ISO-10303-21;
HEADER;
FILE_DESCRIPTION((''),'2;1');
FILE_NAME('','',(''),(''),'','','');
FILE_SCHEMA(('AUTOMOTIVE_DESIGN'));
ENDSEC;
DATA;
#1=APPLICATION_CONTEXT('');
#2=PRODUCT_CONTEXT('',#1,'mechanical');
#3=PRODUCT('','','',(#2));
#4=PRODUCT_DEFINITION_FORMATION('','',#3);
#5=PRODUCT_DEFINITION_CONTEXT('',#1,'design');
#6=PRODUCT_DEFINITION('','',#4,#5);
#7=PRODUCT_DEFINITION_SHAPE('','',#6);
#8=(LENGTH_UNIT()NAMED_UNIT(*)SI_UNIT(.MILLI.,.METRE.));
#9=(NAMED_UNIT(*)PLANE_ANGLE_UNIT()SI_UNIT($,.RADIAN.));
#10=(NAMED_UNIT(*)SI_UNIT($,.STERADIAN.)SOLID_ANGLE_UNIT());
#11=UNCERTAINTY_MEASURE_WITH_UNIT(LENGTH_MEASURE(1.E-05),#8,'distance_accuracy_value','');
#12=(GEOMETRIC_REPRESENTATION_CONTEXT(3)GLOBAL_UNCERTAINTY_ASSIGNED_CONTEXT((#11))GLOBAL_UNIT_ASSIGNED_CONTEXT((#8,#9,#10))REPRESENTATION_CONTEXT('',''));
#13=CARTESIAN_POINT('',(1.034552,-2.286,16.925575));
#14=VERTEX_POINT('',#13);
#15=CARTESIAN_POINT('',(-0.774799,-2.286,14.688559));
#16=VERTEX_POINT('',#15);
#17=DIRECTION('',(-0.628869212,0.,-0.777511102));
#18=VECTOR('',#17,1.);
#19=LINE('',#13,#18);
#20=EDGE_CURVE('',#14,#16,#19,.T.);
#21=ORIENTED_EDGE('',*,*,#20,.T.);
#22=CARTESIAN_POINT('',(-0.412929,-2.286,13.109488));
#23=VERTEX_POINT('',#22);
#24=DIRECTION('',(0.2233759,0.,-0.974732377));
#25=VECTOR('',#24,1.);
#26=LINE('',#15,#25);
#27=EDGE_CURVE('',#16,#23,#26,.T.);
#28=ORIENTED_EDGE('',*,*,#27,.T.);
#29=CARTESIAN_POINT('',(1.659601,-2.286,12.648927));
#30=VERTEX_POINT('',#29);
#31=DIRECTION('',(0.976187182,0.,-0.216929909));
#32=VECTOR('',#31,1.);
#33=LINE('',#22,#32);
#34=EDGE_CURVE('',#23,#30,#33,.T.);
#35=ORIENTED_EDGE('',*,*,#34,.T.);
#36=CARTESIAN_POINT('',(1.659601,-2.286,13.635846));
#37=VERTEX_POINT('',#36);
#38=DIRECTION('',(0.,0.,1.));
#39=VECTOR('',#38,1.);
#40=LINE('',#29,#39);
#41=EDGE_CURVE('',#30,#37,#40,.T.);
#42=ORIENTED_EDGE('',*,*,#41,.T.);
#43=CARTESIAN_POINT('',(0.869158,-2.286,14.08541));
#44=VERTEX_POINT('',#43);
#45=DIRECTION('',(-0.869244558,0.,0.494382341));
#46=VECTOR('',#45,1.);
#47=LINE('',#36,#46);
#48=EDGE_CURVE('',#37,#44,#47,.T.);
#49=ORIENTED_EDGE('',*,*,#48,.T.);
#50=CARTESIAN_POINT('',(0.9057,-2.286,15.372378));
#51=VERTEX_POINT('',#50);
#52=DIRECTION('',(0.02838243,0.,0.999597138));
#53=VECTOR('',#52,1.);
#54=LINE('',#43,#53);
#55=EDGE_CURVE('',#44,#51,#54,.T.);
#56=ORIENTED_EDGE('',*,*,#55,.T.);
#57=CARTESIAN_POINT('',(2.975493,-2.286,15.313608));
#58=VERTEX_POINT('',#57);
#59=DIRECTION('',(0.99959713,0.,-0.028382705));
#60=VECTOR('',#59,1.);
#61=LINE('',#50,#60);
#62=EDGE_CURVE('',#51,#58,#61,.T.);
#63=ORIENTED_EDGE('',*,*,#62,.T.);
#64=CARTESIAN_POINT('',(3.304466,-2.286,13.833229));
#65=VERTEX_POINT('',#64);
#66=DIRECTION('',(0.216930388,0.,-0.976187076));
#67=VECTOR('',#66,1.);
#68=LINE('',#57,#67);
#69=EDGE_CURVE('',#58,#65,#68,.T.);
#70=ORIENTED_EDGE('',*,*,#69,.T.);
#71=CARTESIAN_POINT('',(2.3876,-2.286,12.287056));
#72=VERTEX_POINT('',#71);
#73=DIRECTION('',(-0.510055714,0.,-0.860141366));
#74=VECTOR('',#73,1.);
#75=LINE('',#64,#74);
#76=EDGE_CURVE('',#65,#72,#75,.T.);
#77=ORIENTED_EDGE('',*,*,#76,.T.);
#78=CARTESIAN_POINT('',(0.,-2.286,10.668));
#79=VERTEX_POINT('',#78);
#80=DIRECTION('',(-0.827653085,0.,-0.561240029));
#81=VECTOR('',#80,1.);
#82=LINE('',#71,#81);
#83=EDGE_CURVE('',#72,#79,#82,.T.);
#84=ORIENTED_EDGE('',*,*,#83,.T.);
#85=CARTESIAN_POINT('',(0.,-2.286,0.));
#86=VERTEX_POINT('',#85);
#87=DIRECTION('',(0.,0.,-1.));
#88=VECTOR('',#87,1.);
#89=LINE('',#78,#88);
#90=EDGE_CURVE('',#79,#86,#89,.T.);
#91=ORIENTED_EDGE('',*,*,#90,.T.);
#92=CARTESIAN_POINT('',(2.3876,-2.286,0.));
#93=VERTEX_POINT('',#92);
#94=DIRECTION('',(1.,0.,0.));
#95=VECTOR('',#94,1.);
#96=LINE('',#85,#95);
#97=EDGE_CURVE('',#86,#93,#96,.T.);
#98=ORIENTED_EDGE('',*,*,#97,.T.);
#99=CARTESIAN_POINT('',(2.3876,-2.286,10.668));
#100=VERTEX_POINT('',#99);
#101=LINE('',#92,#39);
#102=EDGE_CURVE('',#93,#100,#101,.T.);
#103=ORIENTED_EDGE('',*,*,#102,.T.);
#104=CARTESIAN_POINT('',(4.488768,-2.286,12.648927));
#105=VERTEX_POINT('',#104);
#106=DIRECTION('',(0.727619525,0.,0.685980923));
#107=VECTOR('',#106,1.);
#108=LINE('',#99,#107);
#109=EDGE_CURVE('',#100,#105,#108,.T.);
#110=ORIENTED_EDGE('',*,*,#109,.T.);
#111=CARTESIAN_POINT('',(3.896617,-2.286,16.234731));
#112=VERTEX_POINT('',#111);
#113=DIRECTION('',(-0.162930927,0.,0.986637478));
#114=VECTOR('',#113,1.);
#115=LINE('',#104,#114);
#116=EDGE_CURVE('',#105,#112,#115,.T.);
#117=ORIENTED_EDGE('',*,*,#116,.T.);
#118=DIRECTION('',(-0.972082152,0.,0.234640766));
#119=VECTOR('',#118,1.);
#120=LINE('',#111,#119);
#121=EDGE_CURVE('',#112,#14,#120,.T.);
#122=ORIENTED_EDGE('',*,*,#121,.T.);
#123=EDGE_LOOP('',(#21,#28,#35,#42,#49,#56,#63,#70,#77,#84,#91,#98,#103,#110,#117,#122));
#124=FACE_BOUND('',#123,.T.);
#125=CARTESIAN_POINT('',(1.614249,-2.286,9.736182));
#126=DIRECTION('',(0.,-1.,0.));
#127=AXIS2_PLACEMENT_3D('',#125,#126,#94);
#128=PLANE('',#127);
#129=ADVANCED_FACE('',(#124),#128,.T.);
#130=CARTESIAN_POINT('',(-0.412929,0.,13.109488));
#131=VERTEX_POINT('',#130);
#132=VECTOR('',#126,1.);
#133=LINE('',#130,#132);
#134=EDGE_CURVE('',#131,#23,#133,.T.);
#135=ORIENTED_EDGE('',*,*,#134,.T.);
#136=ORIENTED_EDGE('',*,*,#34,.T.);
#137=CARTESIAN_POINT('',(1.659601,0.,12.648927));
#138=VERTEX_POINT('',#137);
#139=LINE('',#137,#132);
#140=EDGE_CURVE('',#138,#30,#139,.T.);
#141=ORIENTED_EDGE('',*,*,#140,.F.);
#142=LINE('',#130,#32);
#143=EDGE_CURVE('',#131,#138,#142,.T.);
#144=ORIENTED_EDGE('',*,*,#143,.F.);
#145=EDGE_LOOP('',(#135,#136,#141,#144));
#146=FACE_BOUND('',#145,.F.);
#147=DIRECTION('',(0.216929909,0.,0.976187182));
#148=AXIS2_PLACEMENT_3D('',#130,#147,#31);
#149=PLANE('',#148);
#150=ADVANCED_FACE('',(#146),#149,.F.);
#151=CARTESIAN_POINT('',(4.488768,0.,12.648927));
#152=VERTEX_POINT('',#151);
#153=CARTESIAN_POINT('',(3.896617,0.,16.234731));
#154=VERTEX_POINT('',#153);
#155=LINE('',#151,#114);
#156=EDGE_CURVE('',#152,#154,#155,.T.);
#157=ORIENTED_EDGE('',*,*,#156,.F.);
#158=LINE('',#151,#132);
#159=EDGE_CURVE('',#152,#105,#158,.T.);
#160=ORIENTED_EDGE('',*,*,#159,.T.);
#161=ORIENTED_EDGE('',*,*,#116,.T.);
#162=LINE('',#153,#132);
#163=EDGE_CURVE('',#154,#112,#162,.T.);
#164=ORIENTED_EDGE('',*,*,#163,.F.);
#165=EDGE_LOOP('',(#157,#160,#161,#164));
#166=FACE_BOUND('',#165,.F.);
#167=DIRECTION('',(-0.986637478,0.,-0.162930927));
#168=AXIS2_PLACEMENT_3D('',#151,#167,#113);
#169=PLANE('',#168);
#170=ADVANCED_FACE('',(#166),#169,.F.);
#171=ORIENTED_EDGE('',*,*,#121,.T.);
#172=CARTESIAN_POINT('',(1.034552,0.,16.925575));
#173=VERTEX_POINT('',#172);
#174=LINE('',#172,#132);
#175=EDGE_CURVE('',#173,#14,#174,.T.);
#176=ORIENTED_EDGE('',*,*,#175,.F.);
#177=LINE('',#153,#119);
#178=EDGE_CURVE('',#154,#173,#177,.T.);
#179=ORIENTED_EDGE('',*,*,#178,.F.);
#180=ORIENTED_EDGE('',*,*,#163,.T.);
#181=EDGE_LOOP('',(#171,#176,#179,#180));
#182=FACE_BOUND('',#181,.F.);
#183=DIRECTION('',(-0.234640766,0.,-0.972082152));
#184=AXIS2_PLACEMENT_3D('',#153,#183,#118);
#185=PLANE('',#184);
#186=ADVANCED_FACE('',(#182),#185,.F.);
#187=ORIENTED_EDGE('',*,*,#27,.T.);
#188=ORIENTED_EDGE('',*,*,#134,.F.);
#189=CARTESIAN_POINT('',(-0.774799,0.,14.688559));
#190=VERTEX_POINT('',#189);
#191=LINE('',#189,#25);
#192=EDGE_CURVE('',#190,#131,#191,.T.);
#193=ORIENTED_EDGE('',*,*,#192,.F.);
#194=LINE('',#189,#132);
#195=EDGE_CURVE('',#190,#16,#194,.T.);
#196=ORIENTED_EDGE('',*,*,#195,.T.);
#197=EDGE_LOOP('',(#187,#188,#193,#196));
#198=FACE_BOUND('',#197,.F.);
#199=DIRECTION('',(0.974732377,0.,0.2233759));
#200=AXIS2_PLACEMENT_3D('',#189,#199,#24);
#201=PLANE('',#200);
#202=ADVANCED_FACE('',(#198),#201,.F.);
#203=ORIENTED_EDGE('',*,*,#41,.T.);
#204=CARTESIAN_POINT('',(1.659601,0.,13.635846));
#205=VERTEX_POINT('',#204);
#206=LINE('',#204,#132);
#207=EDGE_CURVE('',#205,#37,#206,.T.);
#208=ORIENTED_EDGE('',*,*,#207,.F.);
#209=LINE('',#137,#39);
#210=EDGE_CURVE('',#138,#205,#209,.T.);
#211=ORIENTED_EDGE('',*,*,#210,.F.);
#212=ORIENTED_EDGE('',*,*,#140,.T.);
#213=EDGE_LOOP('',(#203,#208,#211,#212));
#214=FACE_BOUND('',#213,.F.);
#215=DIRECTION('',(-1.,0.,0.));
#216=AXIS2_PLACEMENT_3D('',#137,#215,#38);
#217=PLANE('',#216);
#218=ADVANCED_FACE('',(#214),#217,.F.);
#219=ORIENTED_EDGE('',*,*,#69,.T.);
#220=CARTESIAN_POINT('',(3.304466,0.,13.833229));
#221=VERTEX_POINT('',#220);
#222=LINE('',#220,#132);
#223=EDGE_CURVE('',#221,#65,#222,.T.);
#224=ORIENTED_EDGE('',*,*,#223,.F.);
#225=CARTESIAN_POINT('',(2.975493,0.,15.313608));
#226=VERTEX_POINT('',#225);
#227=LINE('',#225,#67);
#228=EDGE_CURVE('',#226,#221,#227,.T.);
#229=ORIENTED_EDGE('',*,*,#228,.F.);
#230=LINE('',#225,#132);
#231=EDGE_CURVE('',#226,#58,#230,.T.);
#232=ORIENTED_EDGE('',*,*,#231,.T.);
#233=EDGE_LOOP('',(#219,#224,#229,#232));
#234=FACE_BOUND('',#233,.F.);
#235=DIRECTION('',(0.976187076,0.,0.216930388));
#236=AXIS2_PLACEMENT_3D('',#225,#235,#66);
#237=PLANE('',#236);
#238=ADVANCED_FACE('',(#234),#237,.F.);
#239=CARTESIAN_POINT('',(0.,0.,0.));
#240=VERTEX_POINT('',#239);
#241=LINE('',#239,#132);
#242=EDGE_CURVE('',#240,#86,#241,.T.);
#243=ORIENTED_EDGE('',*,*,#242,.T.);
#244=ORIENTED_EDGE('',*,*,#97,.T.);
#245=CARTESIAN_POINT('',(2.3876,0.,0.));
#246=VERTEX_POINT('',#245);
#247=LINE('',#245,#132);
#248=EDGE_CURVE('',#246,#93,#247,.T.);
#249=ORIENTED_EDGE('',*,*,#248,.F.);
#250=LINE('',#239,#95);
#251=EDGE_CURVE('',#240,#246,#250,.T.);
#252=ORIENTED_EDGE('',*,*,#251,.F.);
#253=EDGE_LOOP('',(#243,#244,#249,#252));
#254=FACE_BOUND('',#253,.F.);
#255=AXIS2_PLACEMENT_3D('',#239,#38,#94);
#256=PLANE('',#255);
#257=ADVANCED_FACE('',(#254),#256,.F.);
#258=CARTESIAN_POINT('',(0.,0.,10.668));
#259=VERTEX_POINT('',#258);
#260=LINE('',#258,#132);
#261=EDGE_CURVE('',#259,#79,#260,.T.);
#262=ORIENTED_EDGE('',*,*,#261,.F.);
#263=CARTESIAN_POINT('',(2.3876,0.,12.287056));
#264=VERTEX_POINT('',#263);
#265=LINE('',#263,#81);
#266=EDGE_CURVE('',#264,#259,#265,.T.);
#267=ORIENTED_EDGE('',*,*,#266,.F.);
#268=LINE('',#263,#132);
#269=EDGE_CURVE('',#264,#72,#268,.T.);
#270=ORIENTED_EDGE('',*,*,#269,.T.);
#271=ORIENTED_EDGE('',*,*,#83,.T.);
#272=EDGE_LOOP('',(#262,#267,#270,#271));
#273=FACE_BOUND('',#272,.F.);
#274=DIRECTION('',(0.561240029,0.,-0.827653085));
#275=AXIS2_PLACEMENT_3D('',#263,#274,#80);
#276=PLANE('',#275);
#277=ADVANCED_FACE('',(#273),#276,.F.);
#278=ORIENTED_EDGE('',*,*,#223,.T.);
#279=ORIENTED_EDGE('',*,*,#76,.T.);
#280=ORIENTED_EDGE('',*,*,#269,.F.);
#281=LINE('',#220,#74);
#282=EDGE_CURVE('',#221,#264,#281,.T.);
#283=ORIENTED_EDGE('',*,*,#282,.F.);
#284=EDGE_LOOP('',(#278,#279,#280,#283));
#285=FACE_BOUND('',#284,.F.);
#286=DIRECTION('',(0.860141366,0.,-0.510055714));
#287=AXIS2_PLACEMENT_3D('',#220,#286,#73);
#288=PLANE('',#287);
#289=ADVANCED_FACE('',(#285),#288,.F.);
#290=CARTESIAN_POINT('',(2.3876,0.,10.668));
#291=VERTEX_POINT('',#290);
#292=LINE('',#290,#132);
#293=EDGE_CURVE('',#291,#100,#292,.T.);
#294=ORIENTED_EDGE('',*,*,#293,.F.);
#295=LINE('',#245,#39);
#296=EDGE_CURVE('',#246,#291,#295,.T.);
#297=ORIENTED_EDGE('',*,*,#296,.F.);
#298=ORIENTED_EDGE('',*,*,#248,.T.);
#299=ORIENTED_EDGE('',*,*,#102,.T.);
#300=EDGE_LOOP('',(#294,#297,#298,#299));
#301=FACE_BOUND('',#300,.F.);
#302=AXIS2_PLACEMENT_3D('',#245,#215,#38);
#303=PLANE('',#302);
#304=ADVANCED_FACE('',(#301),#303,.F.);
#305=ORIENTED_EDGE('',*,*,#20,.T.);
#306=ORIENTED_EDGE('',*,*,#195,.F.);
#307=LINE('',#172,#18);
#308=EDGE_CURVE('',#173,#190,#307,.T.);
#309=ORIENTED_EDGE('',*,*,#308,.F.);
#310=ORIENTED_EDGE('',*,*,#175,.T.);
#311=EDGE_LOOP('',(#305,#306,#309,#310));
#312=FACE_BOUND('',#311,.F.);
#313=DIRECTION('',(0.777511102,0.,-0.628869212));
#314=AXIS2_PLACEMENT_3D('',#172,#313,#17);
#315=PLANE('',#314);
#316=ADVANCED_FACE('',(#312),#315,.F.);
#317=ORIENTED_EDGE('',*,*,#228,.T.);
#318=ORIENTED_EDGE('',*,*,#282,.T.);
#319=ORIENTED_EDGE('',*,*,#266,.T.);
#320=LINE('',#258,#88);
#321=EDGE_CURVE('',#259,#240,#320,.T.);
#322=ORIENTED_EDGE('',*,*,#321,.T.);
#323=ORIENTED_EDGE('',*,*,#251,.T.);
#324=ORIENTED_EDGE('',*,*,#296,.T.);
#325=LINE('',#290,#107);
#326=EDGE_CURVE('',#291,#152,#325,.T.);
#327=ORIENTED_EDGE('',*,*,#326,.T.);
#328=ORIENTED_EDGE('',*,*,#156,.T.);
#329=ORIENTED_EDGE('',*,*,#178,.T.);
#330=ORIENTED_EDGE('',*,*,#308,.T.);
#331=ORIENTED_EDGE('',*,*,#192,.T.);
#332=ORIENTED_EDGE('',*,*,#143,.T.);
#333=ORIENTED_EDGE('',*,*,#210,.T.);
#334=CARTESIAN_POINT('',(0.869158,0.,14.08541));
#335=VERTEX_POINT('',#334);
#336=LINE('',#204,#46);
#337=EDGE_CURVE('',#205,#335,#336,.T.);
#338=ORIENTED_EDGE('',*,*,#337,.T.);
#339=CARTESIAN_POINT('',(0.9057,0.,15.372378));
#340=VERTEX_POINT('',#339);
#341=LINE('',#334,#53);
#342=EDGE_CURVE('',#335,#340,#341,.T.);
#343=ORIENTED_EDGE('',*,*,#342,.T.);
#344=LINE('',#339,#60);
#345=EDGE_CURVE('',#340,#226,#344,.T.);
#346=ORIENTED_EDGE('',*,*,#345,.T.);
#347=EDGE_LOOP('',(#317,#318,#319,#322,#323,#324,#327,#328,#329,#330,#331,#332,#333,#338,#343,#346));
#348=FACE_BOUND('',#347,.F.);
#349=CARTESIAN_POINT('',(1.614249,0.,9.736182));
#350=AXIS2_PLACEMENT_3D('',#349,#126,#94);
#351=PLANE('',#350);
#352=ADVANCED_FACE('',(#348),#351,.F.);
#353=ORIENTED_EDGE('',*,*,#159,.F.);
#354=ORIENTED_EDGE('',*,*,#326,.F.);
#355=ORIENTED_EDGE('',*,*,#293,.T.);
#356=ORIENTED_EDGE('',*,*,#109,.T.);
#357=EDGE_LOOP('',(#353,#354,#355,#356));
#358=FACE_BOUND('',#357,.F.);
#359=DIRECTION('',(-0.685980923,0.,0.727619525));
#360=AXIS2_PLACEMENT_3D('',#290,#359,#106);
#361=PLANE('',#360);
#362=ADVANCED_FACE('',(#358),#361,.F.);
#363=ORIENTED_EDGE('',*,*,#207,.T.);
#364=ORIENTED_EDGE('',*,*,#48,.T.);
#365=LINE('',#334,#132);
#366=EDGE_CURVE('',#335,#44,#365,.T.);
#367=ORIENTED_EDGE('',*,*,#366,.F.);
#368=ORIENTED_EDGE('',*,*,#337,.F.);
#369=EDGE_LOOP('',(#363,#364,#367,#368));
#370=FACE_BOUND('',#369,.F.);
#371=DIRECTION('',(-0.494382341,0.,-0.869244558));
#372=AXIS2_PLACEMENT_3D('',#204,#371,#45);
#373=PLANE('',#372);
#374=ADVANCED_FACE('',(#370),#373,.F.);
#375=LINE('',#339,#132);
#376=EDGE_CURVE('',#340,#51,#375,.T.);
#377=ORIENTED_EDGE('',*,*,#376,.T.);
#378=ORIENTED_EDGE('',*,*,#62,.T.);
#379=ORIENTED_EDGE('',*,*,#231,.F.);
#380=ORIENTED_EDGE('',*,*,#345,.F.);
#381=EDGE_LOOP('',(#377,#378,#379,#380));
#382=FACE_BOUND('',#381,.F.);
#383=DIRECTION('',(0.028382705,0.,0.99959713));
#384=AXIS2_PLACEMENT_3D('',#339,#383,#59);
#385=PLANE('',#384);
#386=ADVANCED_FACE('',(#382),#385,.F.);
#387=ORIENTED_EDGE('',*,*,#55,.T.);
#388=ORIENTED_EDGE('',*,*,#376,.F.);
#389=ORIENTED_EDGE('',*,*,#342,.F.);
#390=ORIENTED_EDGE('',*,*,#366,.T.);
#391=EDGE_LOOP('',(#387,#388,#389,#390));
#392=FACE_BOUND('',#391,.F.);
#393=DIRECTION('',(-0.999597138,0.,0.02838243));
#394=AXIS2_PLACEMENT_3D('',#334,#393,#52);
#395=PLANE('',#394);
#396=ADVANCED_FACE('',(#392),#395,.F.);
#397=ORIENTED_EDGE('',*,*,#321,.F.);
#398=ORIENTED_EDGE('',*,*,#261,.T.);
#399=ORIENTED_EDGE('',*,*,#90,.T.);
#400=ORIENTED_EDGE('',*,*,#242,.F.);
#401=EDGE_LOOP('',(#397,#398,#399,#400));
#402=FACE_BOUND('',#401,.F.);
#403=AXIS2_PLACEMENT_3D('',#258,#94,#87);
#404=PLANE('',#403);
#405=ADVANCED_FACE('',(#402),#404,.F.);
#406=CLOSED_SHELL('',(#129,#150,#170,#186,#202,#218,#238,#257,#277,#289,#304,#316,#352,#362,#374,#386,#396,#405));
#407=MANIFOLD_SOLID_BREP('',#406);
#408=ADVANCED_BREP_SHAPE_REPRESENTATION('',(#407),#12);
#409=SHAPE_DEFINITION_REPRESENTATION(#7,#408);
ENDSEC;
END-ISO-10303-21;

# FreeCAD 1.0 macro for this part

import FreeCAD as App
import Part
import Sketcher
Q = App.Units.Quantity


def add_polygon(sketch, points):
    """Adds a closed chain of lines whose ends are joined by coincident constraints."""
    first, n = sketch.GeometryCount, len(points)
    for a, b in zip(points, points[1:] + points[:1]):
        sketch.addGeometry(Part.LineSegment(App.Vector(*a, 0), App.Vector(*b, 0)), False)
    for i in range(n):
        sketch.addConstraint(Sketcher.Constraint("Coincident", first + i, 2, first + (i + 1) % n, 1))

doc = App.newDocument("Part")
params = doc.addObject("Spreadsheet::Sheet", "Params")
for row, (alias, value) in enumerate([
    ("sketch1_height", "0.42 in"),
    ("sketch1_height2", "0.42 in"),
    ("sketch1_width", "0.094 in"),
    ("pad1_length", "0.09 in"),
], start=1):
    params.set(f"A{row}", alias)
    params.set(f"B{row}", "=" + value)
    params.setAlias(f"B{row}", alias)

body = doc.addObject("PartDesign::Body", "Body")

# Sketch on XZ plane
sketch1 = body.newObject("Sketcher::SketchObject", "Sketch")
sketch1.AttachmentSupport = (doc.getObject("XZ_Plane"), [""])
sketch1.MapMode = "FlatFace"
add_polygon(sketch1, [(0, 10.668), (0, 0), (2.3876, 0), (2.3876, 10.668), (4.488768, 12.648927), (3.896617, 16.234731), (1.034552, 16.925575), (-0.774799, 14.688559), (-0.412929, 13.109488), (1.659601, 12.648927), (1.659601, 13.635846), (0.869158, 14.08541), (0.9057, 15.372378), (2.975493, 15.313608), (3.304466, 13.833229), (2.3876, 12.287056)])  # lines 0-15
sketch1.addConstraint(Sketcher.Constraint("Vertical", 0))
sketch1.addConstraint(Sketcher.Constraint("Horizontal", 1))
sketch1.addConstraint(Sketcher.Constraint("Vertical", 2))
sketch1.addConstraint(Sketcher.Constraint("Vertical", 9))
sketch1.addConstraint(Sketcher.Constraint("Coincident", 0, 2, -1, 1))
sketch1.addConstraint(Sketcher.Constraint("DistanceY", 0, 2, 0, 1, Q("0.42 in")))
sketch1.addConstraint(Sketcher.Constraint("DistanceY", 2, 1, 2, 2, Q("0.42 in")))
sketch1.addConstraint(Sketcher.Constraint("DistanceX", 1, 1, 1, 2, Q("0.094 in")))
sketch1.addConstraint(Sketcher.Constraint("DistanceX", -1, 1, 14, 2, Q("0.094 in")))
sketch1.addConstraint(Sketcher.Constraint("DistanceY", 9, 1, 9, 2, 0.986919))
sketch1.addConstraint(Sketcher.Constraint("DistanceX", 6, 2, -1, 1, 0.774799))
sketch1.addConstraint(Sketcher.Constraint("DistanceX", -1, 1, 8, 2, 1.659601))
sketch1.addConstraint(Sketcher.Constraint("DistanceX", -1, 1, 11, 2, 0.9057))
sketch1.addConstraint(Sketcher.Constraint("DistanceY", 10, 2, 12, 2, 1.228198))
sketch1.addConstraint(Sketcher.Constraint("DistanceY", 3, 2, 13, 2, 1.184302))
sketch1.addConstraint(Sketcher.Constraint("DistanceY", 8, 2, 13, 2, 1.184302))
sketch1.addConstraint(Sketcher.Constraint("Distance", 3, 2.887729))
sketch1.addConstraint(Sketcher.Constraint("Distance", 4, 3.634368))
sketch1.addConstraint(Sketcher.Constraint("Distance", 6, 2.87715))
sketch1.addConstraint(Sketcher.Constraint("Distance", 13, 1.516491))
sketch1.addConstraint(Sketcher.Constraint("Distance", 14, 1.79758))
sketch1.addConstraint(Sketcher.Constraint("DistanceX", -1, 1, 3, 2, 4.488768))
sketch1.addConstraint(Sketcher.Constraint("DistanceY", -1, 1, 4, 2, 16.234731))
sketch1.addConstraint(Sketcher.Constraint("DistanceX", -1, 1, 5, 2, 1.034552))
sketch1.addConstraint(Sketcher.Constraint("DistanceY", -1, 1, 6, 2, 14.688559))
sketch1.addConstraint(Sketcher.Constraint("DistanceX", 7, 2, -1, 1, 0.412929))
sketch1.addConstraint(Sketcher.Constraint("DistanceY", -1, 1, 7, 2, 13.109488))
sketch1.addConstraint(Sketcher.Constraint("DistanceY", -1, 1, 10, 2, 14.08541))
sketch1.addConstraint(Sketcher.Constraint("DistanceX", 10, 2, 11, 2, 0.036542))
sketch1.addConstraint(Sketcher.Constraint("DistanceY", 6, 2, 11, 2, 0.683819))
sketch1.addConstraint(Sketcher.Constraint("DistanceX", 5, 2, 12, 2, 1.940941))
sketch1.setExpression("Constraints[21]", "Params.sketch1_height")
sketch1.setExpression("Constraints[22]", "Params.sketch1_height2")
sketch1.setExpression("Constraints[23]", "Params.sketch1_width")
pad1 = body.newObject("PartDesign::Pad", "Pad")
pad1.Profile = sketch1
pad1.setExpression("Length", "Params.pad1_length")

doc.recompute()
